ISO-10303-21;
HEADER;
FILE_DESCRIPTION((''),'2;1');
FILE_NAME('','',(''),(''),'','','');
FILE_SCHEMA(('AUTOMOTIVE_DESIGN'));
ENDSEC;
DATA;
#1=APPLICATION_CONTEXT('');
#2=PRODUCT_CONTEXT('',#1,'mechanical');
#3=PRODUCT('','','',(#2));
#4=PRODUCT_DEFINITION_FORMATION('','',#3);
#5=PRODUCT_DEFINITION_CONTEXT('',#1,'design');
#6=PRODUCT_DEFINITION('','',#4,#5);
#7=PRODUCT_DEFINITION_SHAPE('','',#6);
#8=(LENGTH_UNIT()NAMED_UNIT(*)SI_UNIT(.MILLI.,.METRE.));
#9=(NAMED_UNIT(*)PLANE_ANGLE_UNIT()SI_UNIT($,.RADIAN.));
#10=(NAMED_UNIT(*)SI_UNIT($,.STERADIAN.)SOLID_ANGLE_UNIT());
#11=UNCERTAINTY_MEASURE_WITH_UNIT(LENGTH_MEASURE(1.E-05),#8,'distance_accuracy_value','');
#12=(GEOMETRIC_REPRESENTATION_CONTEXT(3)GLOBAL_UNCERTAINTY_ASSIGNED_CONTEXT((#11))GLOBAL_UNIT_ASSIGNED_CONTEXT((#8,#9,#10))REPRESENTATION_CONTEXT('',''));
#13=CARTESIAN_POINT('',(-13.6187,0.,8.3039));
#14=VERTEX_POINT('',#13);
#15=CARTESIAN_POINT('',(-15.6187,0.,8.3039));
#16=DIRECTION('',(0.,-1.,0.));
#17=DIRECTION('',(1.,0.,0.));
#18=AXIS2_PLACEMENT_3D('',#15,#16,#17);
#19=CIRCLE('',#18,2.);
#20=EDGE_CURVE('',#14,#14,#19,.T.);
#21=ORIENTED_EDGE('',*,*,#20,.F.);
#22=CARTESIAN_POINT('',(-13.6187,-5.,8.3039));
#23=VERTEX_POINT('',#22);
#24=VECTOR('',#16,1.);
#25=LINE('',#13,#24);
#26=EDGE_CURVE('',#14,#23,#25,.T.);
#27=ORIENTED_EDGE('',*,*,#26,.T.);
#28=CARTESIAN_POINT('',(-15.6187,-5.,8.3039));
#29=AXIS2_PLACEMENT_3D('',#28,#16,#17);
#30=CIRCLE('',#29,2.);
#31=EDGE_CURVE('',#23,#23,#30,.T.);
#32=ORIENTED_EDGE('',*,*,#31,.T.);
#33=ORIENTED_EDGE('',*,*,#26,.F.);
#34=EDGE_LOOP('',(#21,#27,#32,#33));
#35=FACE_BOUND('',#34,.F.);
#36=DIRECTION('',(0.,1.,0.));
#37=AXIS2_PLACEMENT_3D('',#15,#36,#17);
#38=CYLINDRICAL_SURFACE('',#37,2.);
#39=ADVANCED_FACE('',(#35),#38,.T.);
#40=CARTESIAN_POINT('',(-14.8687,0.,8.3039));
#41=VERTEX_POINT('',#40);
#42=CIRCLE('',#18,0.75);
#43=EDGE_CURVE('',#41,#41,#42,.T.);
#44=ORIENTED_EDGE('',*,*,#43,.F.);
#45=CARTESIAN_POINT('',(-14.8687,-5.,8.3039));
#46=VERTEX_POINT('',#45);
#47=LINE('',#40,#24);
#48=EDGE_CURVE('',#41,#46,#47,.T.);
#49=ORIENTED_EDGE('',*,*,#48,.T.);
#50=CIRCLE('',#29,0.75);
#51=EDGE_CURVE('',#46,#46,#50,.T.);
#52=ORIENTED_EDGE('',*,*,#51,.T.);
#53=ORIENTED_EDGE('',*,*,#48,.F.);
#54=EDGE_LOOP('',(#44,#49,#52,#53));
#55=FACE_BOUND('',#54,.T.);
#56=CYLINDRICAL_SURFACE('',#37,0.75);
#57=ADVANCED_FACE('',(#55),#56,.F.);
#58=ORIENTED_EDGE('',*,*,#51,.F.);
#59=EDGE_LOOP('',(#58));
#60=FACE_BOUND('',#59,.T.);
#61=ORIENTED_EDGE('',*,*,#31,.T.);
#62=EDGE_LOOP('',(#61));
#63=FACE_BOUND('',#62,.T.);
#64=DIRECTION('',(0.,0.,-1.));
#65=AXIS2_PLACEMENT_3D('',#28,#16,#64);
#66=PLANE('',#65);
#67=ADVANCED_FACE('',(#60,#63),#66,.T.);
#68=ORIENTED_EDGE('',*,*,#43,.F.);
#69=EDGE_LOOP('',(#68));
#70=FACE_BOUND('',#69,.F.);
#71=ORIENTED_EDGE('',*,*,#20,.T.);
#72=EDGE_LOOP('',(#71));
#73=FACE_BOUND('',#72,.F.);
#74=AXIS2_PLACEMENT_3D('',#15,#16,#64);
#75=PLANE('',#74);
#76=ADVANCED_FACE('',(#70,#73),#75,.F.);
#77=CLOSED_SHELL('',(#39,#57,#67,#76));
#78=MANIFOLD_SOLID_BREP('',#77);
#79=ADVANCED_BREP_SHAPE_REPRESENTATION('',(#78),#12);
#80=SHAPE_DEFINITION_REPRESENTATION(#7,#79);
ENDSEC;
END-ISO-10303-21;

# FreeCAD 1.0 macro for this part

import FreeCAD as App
import Part
import Sketcher

V = App.Vector
Q = App.Units.Quantity

doc = App.newDocument("Part")
body = doc.addObject("PartDesign::Body", "Body")

# Sketch on XZ plane
sketch1 = body.newObject("Sketcher::SketchObject", "Sketch")
sketch1.AttachmentSupport = (doc.getObject("XZ_Plane"), [""])
sketch1.MapMode = "FlatFace"
sketch1.addGeometry(Part.Circle(V(-15.6, 8.3, 0), V(0, 0, 1), 2), False)
sketch1.addGeometry(Part.Circle(V(-15.6, 8.3, 0), V(0, 0, 1), 0.8), False)
sketch1.addConstraint(Sketcher.Constraint("Coincident", 1, 3, 0, 3))
sketch1.addConstraint(Sketcher.Constraint("Diameter", 0, Q("4 mm")))
sketch1.addConstraint(Sketcher.Constraint("Diameter", 1, Q("1.5 mm")))
sketch1.addConstraint(Sketcher.Constraint("DistanceY", -1, 1, 0, 3, Q("8.304 mm")))
sketch1.addConstraint(Sketcher.Constraint("DistanceX", 0, 3, -1, 1, Q("15.6187 mm")))
pad1 = body.newObject("PartDesign::Pad", "Pad")
pad1.Profile = sketch1
pad1.Length = 5

doc.recompute()
